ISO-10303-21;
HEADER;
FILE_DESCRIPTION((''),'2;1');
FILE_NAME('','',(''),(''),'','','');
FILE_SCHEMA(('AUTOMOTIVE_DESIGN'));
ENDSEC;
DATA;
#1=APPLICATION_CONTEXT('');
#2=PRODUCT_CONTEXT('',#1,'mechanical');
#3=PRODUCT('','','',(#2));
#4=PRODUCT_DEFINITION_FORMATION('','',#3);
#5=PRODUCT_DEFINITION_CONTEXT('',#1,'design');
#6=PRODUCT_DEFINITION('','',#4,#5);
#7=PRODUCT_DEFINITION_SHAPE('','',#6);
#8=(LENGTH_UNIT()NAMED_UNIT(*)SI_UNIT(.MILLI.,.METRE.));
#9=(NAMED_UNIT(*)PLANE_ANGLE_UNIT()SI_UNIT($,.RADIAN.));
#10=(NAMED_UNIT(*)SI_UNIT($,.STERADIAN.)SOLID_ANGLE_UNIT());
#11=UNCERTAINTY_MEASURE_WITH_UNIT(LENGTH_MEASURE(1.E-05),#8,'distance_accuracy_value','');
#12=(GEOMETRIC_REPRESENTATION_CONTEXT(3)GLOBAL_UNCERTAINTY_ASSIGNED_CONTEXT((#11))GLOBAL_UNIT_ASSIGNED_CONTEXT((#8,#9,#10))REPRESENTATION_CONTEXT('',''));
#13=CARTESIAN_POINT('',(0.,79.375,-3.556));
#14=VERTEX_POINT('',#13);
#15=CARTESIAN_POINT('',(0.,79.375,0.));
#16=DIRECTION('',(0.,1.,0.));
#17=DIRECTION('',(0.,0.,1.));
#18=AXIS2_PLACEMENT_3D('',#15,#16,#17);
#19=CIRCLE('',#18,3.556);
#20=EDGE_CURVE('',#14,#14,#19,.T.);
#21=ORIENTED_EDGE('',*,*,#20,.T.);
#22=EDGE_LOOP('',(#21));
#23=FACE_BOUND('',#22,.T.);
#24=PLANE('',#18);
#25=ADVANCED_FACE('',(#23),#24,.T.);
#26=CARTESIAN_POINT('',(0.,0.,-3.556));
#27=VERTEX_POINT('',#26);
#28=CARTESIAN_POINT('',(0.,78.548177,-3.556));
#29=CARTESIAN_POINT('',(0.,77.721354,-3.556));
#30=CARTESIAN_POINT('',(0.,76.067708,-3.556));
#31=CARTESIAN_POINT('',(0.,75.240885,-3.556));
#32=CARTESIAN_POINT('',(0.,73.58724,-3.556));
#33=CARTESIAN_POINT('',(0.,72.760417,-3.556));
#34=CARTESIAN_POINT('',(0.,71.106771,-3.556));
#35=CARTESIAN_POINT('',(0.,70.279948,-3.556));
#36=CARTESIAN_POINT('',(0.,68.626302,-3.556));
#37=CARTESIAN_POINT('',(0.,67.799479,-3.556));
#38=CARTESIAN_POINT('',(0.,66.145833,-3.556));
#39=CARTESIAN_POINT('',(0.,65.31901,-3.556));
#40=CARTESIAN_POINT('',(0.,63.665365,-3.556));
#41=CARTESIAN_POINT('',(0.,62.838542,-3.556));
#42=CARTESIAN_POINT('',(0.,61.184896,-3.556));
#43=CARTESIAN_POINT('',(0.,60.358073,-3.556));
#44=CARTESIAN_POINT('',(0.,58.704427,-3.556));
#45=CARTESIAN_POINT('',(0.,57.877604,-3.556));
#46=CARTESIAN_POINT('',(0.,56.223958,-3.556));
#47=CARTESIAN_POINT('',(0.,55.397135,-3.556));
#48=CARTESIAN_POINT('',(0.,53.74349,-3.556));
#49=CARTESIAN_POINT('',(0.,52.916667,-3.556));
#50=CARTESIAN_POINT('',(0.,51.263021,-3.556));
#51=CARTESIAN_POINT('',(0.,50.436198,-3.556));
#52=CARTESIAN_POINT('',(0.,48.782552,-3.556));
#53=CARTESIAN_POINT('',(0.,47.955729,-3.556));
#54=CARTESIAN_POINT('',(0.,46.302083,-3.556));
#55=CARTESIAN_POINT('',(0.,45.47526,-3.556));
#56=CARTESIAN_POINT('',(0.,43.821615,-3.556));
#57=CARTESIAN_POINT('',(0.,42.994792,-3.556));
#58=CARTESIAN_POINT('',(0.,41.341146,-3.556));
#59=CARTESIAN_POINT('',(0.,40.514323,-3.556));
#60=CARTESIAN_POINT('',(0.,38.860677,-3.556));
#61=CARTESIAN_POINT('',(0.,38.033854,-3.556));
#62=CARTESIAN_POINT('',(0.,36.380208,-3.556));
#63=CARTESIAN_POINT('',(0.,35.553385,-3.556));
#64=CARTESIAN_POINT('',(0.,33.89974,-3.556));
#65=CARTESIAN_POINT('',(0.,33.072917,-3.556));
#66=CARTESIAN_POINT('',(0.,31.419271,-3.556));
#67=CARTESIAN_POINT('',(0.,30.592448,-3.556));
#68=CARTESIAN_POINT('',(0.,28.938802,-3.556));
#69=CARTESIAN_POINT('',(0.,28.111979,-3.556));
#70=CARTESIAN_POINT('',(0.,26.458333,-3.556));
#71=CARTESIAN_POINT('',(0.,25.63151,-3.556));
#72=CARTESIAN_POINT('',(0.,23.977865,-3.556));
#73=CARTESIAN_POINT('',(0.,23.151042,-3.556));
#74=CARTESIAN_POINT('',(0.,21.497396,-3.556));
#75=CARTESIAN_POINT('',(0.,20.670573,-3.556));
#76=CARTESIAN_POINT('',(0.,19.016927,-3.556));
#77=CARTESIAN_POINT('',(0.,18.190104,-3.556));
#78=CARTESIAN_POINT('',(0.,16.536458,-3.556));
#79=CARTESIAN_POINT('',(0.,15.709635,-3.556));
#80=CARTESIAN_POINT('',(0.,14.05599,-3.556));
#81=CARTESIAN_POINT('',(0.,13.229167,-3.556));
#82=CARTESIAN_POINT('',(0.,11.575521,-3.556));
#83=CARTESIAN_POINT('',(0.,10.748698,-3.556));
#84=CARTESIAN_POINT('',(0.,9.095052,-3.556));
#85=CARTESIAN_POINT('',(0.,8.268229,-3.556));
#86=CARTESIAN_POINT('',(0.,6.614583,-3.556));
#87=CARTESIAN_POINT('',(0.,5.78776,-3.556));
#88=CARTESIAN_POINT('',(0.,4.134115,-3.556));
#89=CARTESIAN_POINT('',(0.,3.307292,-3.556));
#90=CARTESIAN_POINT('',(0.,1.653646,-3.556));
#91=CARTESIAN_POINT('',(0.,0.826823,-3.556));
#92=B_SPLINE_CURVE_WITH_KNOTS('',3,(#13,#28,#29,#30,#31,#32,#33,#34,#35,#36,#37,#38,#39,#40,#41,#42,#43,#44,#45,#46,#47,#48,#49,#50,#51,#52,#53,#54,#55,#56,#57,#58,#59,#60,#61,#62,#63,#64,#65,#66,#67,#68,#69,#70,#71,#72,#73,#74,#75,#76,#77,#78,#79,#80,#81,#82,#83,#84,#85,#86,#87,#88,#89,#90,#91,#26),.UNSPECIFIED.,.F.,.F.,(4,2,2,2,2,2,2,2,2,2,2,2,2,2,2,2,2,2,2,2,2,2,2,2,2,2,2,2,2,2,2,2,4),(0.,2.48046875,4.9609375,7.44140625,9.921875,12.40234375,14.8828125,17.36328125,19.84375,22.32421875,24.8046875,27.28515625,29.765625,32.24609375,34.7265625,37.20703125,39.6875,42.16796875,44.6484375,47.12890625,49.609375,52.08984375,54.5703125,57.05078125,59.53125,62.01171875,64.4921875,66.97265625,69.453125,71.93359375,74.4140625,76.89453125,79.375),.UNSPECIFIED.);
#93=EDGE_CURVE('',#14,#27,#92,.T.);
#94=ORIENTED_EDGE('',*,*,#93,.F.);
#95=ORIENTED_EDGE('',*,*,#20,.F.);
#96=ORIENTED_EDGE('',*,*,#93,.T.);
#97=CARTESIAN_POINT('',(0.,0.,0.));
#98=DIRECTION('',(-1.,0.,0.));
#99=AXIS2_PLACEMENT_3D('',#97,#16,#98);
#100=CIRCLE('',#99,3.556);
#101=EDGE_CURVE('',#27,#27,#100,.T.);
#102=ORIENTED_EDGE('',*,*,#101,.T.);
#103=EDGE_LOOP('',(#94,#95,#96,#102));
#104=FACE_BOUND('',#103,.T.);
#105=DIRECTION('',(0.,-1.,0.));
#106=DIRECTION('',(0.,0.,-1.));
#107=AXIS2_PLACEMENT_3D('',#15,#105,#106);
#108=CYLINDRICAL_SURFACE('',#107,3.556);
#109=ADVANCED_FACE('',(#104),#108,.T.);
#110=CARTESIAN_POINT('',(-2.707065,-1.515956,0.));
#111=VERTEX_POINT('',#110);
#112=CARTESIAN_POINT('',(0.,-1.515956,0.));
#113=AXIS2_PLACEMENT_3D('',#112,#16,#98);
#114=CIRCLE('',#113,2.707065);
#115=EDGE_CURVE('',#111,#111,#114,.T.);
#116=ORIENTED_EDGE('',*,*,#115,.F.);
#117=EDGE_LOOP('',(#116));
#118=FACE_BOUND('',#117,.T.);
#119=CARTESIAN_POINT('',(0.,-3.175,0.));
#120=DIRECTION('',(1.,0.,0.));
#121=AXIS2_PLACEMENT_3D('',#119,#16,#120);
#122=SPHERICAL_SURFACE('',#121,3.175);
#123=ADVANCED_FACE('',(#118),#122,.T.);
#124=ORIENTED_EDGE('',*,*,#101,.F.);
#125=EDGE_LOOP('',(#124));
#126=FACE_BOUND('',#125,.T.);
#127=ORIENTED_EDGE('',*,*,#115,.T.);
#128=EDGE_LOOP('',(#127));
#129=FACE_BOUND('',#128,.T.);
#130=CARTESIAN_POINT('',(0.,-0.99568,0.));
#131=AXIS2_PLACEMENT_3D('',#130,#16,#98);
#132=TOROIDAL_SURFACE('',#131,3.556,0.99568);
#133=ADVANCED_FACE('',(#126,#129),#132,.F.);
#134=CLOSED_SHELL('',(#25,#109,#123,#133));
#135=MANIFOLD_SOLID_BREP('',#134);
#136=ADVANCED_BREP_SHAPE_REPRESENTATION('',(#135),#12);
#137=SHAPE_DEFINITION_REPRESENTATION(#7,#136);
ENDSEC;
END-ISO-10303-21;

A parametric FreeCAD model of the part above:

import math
import FreeCAD as App
import Part
import Sketcher

V = App.Vector
Q = App.Units.Quantity

doc = App.newDocument("Part")
body = doc.addObject("PartDesign::Body", "Body")

sketch1 = doc.addObject("Sketcher::SketchObject", "Sketch")
body.addObject(sketch1)
sketch1.AttachmentSupport = (doc.XZ_Plane, [""])
sketch1.MapMode = "FlatFace"
sketch1.addGeometry(Part.Circle(V(0, 0, 0), V(0, 0, 1), 3.556), False)
sketch1.addConstraint([
    Sketcher.Constraint("Coincident", 0, 3, -1, 1),
    Sketcher.Constraint("Diameter", 0, Q("0.28 in")),
])
pad1 = doc.addObject("PartDesign::Pad", "Pad")
body.addObject(pad1)
pad1.Profile = sketch1
pad1.Length = Q("3.125 in")
pad1.Reversed = True

sketch2 = doc.addObject("Sketcher::SketchObject", "Sketch001")
body.addObject(sketch2)
sketch2.AttachmentSupport = (doc.XY_Plane, [""])
sketch2.MapMode = "FlatFace"
sketch2.addGeometry([
    Part.LineSegment(V(3.556, 0, 0), V(0, 0, 0)),
    Part.LineSegment(V(0, 0, 0), V(0, -6.35, 0)),
    Part.ArcOfCircle(Part.Circle(V(0, -3.175, 0), V(0, 0, 1), 3.175), math.radians(-90), math.radians(31.502347)),
    Part.ArcOfCircle(Part.Circle(V(3.556, -0.99568, 0), V(0, 0, 1), 0.99568), math.radians(90), math.radians(211.502347)),
], False)
sketch2.addConstraint([
    Sketcher.Constraint("Coincident", 0, 2, 1, 1),
    Sketcher.Constraint("Coincident", 1, 2, 2, 1),
    Sketcher.Constraint("Tangent", 2, 2, 3, 2),
    Sketcher.Constraint("Tangent", 3, 1, 0, 1),
    Sketcher.Constraint("Horizontal", 0),
    Sketcher.Constraint("Vertical", 1),
    Sketcher.Constraint("Coincident", 0, 2, -1, 1),
    Sketcher.Constraint("PointOnObject", 2, 3, -2),
    Sketcher.Constraint("Radius", 2, Q("0.125 in")),
    Sketcher.Constraint("DistanceX", 0, 2, 0, 1, Q("0.14 in")),
    Sketcher.Constraint("DistanceY", 1, 2, 1, 1, Q("0.25 in")),
])
revolution = doc.addObject("PartDesign::Revolution", "Revolution")
body.addObject(revolution)
revolution.Profile = sketch2
revolution.ReferenceAxis = (sketch2, ["V_Axis"])
revolution.Angle = 360

doc.recompute()
